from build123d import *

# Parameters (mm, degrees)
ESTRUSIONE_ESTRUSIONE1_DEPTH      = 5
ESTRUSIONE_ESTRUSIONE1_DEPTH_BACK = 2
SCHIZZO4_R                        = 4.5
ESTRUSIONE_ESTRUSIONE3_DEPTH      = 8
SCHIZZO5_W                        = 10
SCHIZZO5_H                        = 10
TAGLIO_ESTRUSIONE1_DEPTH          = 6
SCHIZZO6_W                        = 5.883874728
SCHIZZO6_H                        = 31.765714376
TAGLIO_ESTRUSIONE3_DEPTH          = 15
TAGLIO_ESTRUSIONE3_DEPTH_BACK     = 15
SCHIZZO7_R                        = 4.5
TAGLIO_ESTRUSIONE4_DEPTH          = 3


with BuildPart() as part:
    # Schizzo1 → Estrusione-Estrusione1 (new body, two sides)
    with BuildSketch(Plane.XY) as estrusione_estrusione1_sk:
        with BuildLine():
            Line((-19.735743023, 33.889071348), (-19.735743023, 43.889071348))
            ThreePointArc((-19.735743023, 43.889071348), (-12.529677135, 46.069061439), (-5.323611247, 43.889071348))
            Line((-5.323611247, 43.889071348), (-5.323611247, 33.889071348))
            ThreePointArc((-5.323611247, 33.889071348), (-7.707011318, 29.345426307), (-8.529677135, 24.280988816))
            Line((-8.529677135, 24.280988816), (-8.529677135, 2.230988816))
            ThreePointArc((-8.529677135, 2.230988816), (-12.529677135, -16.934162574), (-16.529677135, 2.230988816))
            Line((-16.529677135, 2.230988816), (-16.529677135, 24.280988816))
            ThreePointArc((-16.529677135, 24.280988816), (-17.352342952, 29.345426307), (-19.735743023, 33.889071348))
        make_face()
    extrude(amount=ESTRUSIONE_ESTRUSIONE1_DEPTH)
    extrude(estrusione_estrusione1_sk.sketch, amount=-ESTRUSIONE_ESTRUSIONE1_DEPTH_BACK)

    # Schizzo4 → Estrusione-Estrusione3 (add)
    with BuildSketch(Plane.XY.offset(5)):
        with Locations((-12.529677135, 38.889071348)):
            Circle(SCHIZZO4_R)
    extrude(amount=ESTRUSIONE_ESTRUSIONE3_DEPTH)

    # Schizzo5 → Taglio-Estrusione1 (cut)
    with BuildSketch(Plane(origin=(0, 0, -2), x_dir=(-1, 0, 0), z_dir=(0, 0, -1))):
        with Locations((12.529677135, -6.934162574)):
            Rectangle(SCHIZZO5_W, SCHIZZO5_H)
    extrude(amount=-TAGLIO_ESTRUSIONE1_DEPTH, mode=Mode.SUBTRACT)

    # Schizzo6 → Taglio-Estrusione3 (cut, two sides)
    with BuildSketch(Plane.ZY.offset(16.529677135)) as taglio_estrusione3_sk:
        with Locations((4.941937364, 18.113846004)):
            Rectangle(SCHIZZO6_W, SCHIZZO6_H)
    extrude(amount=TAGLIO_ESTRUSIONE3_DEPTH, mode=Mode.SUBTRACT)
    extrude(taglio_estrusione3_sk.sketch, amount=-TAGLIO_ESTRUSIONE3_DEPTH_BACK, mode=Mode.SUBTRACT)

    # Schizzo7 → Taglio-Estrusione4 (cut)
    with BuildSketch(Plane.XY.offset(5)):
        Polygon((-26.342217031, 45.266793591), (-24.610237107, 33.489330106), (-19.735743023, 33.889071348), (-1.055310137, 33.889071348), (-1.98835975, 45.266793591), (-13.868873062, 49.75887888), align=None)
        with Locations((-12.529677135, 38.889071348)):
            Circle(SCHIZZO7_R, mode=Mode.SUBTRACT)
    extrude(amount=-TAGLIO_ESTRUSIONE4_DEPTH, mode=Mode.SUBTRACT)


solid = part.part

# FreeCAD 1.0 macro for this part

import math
import FreeCAD as App
import Part
import Sketcher
from FreeCAD import Vector
Q = App.Units.Quantity

doc = App.newDocument("Part")
body = doc.addObject("PartDesign::Body", "Body")

sketch1 = body.newObject("Sketcher::SketchObject", "Sketch")
sketch1.AttachmentSupport = (doc.getObject("XY_Plane"), [""])
sketch1.MapMode = "FlatFace"
sketch1.addGeometry([
    Part.LineSegment(Vector(-19.735743, 43.889071, 0), Vector(-19.735743, 33.889071, 0)),
    Part.ArcOfCircle(Part.Circle(Vector(-32.529677, 24.280989, 0), Vector(0, 0, 1), 16), math.radians(0), math.radians(36.906086)),
    Part.LineSegment(Vector(-16.529677, 24.280989, 0), Vector(-16.529677, 2.230989, 0)),
    Part.ArcOfCircle(Part.Circle(Vector(-12.529677, -6.934163, 0), Vector(0, 0, 1), 10), math.radians(113.578178), math.radians(426.421822)),
    Part.LineSegment(Vector(-8.529677, 2.230989, 0), Vector(-8.529677, 24.280989, 0)),
    Part.ArcOfCircle(Part.Circle(Vector(7.470323, 24.280989, 0), Vector(0, 0, 1), 16), math.radians(143.093914), math.radians(180)),
    Part.LineSegment(Vector(-5.323611, 33.889071, 0), Vector(-5.323611, 43.889071, 0)),
    Part.ArcOfCircle(Part.Circle(Vector(-12.529677, 33.069061, 0), Vector(0, 0, 1), 13), math.radians(56.336608), math.radians(123.663392)),
], False)
sketch1.addConstraint([
    Sketcher.Constraint("Coincident", 0, 2, 1, 2),
    Sketcher.Constraint("Tangent", 1, 1, 2, 1),
    Sketcher.Constraint("Coincident", 2, 2, 3, 1),
    Sketcher.Constraint("Coincident", 3, 2, 4, 1),
    Sketcher.Constraint("Tangent", 4, 2, 5, 2),
    Sketcher.Constraint("Coincident", 5, 1, 6, 1),
    Sketcher.Constraint("Coincident", 6, 2, 7, 1),
    Sketcher.Constraint("Coincident", 7, 2, 0, 1),
    Sketcher.Constraint("Vertical", 0),
    Sketcher.Constraint("Vertical", 2),
    Sketcher.Constraint("Vertical", 4),
    Sketcher.Constraint("Vertical", 6),
    Sketcher.Constraint("Equal", 1, 5),
    Sketcher.Constraint("Horizontal", 1, 3, 5, 3),
    Sketcher.Constraint("Horizontal", 2, 2, 3, 2),
    Sketcher.Constraint("Horizontal", 0, 2, 5, 1),
    Sketcher.Constraint("Horizontal", 6, 2, 7, 2),
    Sketcher.Constraint("Radius", 1, Q("16 mm")),
    Sketcher.Constraint("Radius", 3, Q("10 mm")),
    Sketcher.Constraint("Radius", 7, Q("13 mm")),
    Sketcher.Constraint("DistanceY", 0, 2, 0, 1, Q("10 mm")),
    Sketcher.Constraint("DistanceX", 1, 3, 3, 3, Q("20 mm")),
    Sketcher.Constraint("DistanceY", 2, 2, 2, 1, Q("22.05 mm")),
    Sketcher.Constraint("DistanceY", -1, 1, 1, 3, Q("24.280989 mm")),
    Sketcher.Constraint("DistanceY", -1, 1, 7, 3, Q("33.069061 mm")),
    Sketcher.Constraint("DistanceX", 5, 1, -1, 1, Q("5.323611 mm")),
])
pad1 = body.newObject("PartDesign::Pad", "Pad")
pad1.Profile = sketch1
pad1.Type = "TwoLengths"
pad1.Length = 5
pad1.Length2 = 2

sketch2 = body.newObject("Sketcher::SketchObject", "Sketch001")
sketch2.AttachmentSupport = (doc.getObject("XY_Plane"), [""])
sketch2.MapMode = "FlatFace"
sketch2.AttachmentOffset = App.Placement(Vector(0, 0, 5), App.Rotation())
sketch2.addGeometry(Part.Circle(Vector(-12.529677, 38.889071, 0), Vector(0, 0, 1), 4.5), False)
sketch2.addConstraint([
    Sketcher.Constraint("Diameter", 0, Q("9 mm")),
    Sketcher.Constraint("DistanceY", -1, 1, 0, 3, Q("38.889071 mm")),
    Sketcher.Constraint("DistanceX", 0, 3, -1, 1, Q("12.529677 mm")),
])
pad2 = body.newObject("PartDesign::Pad", "Pad001")
pad2.Profile = sketch2
pad2.Length = 8

sketch3 = body.newObject("Sketcher::SketchObject", "Sketch002")
sketch3.AttachmentSupport = (doc.getObject("XY_Plane"), [""])
sketch3.MapMode = "FlatFace"
sketch3.AttachmentOffset = App.Placement(Vector(0, 0, -2), App.Rotation())
sketch3.addGeometry([
    Part.LineSegment(Vector(-7.529677, -1.934163, 0), Vector(-7.529677, -11.934163, 0)),
    Part.LineSegment(Vector(-7.529677, -11.934163, 0), Vector(-17.529677, -11.934163, 0)),
    Part.LineSegment(Vector(-17.529677, -11.934163, 0), Vector(-17.529677, -1.934163, 0)),
    Part.LineSegment(Vector(-17.529677, -1.934163, 0), Vector(-7.529677, -1.934163, 0)),
], False)
sketch3.addConstraint([
    Sketcher.Constraint("Coincident", 0, 2, 1, 1),
    Sketcher.Constraint("Coincident", 1, 2, 2, 1),
    Sketcher.Constraint("Coincident", 2, 2, 3, 1),
    Sketcher.Constraint("Coincident", 3, 2, 0, 1),
    Sketcher.Constraint("Vertical", 0),
    Sketcher.Constraint("Horizontal", 1),
    Sketcher.Constraint("Vertical", 2),
    Sketcher.Constraint("Horizontal", 3),
    Sketcher.Constraint("Equal", 3, 0),
    Sketcher.Constraint("DistanceX", 1, 2, 1, 1, Q("10 mm")),
    Sketcher.Constraint("DistanceX", 0, 2, -1, 1, Q("7.529677 mm")),
    Sketcher.Constraint("DistanceY", 0, 2, -1, 1, Q("11.934163 mm")),
])
pocket1 = body.newObject("PartDesign::Pocket", "Pocket")
pocket1.Profile = sketch3
pocket1.Length = 6
pocket1.Reversed = True

sketch4 = body.newObject("Sketcher::SketchObject", "Sketch003")
sketch4.AttachmentSupport = (doc.getObject("YZ_Plane"), [""])
sketch4.MapMode = "FlatFace"
sketch4.AttachmentOffset = App.Placement(Vector(0, 0, -16.529677), App.Rotation())
sketch4.addGeometry([
    Part.LineSegment(Vector(33.996703, 2, 0), Vector(2.230989, 2, 0)),
    Part.LineSegment(Vector(2.230989, 2, 0), Vector(2.230989, 7.883875, 0)),
    Part.LineSegment(Vector(2.230989, 7.883875, 0), Vector(33.996703, 7.883875, 0)),
    Part.LineSegment(Vector(33.996703, 7.883875, 0), Vector(33.996703, 2, 0)),
], False)
sketch4.addConstraint([
    Sketcher.Constraint("Coincident", 0, 2, 1, 1),
    Sketcher.Constraint("Coincident", 1, 2, 2, 1),
    Sketcher.Constraint("Coincident", 2, 2, 3, 1),
    Sketcher.Constraint("Coincident", 3, 2, 0, 1),
    Sketcher.Constraint("Horizontal", 0),
    Sketcher.Constraint("Vertical", 1),
    Sketcher.Constraint("Horizontal", 2),
    Sketcher.Constraint("Vertical", 3),
    Sketcher.Constraint("DistanceY", -1, 1, 0, 2, Q("2 mm")),
    Sketcher.Constraint("DistanceX", 0, 2, 0, 1, Q("31.765714 mm")),
    Sketcher.Constraint("DistanceY", 1, 1, 1, 2, Q("5.883875 mm")),
    Sketcher.Constraint("DistanceX", -1, 1, 0, 2, Q("2.230989 mm")),
])
pocket2 = body.newObject("PartDesign::Pocket", "Pocket001")
pocket2.Profile = sketch4
pocket2.Type = "ThroughAll"
pocket2.Midplane = True

sketch5 = body.newObject("Sketcher::SketchObject", "Sketch004")
sketch5.AttachmentSupport = (doc.getObject("XY_Plane"), [""])
sketch5.MapMode = "FlatFace"
sketch5.AttachmentOffset = App.Placement(Vector(0, 0, 5), App.Rotation())
sketch5.addGeometry([
    Part.LineSegment(Vector(-26.342217, 45.266794, 0), Vector(-24.610237, 33.48933, 0)),
    Part.LineSegment(Vector(-24.610237, 33.48933, 0), Vector(-19.735743, 33.889071, 0)),
    Part.LineSegment(Vector(-19.735743, 33.889071, 0), Vector(-1.05531, 33.889071, 0)),
    Part.LineSegment(Vector(-1.05531, 33.889071, 0), Vector(-1.98836, 45.266794, 0)),
    Part.LineSegment(Vector(-1.98836, 45.266794, 0), Vector(-13.868873, 49.758879, 0)),
    Part.LineSegment(Vector(-13.868873, 49.758879, 0), Vector(-26.342217, 45.266794, 0)),
    Part.Circle(Vector(-12.529677, 38.889071, 0), Vector(0, 0, 1), 4.5),
], False)
sketch5.addConstraint([
    Sketcher.Constraint("Coincident", 0, 2, 1, 1),
    Sketcher.Constraint("Coincident", 1, 2, 2, 1),
    Sketcher.Constraint("Coincident", 2, 2, 3, 1),
    Sketcher.Constraint("Coincident", 3, 2, 4, 1),
    Sketcher.Constraint("Coincident", 4, 2, 5, 1),
    Sketcher.Constraint("Coincident", 5, 2, 0, 1),
    Sketcher.Constraint("Horizontal", 2),
    Sketcher.Constraint("Diameter", 6, Q("9 mm")),
    Sketcher.Constraint("DistanceY", 1, 2, 6, 3, Q("5 mm")),
    Sketcher.Constraint("Distance", 5, Q("13.257569 mm")),
    Sketcher.Constraint("DistanceX", 2, 1, 2, 2, Q("18.680433 mm")),
    Sketcher.Constraint("DistanceY", -1, 1, 6, 3, Q("38.889071 mm")),
    Sketcher.Constraint("DistanceY", -1, 1, 0, 2, Q("33.48933 mm")),
    Sketcher.Constraint("DistanceX", 2, 2, -1, 1, Q("1.05531 mm")),
    Sketcher.Constraint("DistanceX", 3, 2, -1, 1, Q("1.98836 mm")),
    Sketcher.Constraint("DistanceY", -1, 1, 4, 2, Q("49.758879 mm")),
    Sketcher.Constraint("DistanceX", 0, 2, 6, 3, Q("12.08056 mm")),
    Sketcher.Constraint("DistanceX", 1, 2, 4, 2, Q("5.86687 mm")),
    Sketcher.Constraint("DistanceX", 5, 2, 0, 2, Q("1.73198 mm")),
    Sketcher.Constraint("Distance", 0, Q("11.904134 mm")),
    Sketcher.Constraint("Distance", 3, Q("11.415916 mm")),
])
pocket3 = body.newObject("PartDesign::Pocket", "Pocket002")
pocket3.Profile = sketch5
pocket3.Length = 3

doc.recompute()
